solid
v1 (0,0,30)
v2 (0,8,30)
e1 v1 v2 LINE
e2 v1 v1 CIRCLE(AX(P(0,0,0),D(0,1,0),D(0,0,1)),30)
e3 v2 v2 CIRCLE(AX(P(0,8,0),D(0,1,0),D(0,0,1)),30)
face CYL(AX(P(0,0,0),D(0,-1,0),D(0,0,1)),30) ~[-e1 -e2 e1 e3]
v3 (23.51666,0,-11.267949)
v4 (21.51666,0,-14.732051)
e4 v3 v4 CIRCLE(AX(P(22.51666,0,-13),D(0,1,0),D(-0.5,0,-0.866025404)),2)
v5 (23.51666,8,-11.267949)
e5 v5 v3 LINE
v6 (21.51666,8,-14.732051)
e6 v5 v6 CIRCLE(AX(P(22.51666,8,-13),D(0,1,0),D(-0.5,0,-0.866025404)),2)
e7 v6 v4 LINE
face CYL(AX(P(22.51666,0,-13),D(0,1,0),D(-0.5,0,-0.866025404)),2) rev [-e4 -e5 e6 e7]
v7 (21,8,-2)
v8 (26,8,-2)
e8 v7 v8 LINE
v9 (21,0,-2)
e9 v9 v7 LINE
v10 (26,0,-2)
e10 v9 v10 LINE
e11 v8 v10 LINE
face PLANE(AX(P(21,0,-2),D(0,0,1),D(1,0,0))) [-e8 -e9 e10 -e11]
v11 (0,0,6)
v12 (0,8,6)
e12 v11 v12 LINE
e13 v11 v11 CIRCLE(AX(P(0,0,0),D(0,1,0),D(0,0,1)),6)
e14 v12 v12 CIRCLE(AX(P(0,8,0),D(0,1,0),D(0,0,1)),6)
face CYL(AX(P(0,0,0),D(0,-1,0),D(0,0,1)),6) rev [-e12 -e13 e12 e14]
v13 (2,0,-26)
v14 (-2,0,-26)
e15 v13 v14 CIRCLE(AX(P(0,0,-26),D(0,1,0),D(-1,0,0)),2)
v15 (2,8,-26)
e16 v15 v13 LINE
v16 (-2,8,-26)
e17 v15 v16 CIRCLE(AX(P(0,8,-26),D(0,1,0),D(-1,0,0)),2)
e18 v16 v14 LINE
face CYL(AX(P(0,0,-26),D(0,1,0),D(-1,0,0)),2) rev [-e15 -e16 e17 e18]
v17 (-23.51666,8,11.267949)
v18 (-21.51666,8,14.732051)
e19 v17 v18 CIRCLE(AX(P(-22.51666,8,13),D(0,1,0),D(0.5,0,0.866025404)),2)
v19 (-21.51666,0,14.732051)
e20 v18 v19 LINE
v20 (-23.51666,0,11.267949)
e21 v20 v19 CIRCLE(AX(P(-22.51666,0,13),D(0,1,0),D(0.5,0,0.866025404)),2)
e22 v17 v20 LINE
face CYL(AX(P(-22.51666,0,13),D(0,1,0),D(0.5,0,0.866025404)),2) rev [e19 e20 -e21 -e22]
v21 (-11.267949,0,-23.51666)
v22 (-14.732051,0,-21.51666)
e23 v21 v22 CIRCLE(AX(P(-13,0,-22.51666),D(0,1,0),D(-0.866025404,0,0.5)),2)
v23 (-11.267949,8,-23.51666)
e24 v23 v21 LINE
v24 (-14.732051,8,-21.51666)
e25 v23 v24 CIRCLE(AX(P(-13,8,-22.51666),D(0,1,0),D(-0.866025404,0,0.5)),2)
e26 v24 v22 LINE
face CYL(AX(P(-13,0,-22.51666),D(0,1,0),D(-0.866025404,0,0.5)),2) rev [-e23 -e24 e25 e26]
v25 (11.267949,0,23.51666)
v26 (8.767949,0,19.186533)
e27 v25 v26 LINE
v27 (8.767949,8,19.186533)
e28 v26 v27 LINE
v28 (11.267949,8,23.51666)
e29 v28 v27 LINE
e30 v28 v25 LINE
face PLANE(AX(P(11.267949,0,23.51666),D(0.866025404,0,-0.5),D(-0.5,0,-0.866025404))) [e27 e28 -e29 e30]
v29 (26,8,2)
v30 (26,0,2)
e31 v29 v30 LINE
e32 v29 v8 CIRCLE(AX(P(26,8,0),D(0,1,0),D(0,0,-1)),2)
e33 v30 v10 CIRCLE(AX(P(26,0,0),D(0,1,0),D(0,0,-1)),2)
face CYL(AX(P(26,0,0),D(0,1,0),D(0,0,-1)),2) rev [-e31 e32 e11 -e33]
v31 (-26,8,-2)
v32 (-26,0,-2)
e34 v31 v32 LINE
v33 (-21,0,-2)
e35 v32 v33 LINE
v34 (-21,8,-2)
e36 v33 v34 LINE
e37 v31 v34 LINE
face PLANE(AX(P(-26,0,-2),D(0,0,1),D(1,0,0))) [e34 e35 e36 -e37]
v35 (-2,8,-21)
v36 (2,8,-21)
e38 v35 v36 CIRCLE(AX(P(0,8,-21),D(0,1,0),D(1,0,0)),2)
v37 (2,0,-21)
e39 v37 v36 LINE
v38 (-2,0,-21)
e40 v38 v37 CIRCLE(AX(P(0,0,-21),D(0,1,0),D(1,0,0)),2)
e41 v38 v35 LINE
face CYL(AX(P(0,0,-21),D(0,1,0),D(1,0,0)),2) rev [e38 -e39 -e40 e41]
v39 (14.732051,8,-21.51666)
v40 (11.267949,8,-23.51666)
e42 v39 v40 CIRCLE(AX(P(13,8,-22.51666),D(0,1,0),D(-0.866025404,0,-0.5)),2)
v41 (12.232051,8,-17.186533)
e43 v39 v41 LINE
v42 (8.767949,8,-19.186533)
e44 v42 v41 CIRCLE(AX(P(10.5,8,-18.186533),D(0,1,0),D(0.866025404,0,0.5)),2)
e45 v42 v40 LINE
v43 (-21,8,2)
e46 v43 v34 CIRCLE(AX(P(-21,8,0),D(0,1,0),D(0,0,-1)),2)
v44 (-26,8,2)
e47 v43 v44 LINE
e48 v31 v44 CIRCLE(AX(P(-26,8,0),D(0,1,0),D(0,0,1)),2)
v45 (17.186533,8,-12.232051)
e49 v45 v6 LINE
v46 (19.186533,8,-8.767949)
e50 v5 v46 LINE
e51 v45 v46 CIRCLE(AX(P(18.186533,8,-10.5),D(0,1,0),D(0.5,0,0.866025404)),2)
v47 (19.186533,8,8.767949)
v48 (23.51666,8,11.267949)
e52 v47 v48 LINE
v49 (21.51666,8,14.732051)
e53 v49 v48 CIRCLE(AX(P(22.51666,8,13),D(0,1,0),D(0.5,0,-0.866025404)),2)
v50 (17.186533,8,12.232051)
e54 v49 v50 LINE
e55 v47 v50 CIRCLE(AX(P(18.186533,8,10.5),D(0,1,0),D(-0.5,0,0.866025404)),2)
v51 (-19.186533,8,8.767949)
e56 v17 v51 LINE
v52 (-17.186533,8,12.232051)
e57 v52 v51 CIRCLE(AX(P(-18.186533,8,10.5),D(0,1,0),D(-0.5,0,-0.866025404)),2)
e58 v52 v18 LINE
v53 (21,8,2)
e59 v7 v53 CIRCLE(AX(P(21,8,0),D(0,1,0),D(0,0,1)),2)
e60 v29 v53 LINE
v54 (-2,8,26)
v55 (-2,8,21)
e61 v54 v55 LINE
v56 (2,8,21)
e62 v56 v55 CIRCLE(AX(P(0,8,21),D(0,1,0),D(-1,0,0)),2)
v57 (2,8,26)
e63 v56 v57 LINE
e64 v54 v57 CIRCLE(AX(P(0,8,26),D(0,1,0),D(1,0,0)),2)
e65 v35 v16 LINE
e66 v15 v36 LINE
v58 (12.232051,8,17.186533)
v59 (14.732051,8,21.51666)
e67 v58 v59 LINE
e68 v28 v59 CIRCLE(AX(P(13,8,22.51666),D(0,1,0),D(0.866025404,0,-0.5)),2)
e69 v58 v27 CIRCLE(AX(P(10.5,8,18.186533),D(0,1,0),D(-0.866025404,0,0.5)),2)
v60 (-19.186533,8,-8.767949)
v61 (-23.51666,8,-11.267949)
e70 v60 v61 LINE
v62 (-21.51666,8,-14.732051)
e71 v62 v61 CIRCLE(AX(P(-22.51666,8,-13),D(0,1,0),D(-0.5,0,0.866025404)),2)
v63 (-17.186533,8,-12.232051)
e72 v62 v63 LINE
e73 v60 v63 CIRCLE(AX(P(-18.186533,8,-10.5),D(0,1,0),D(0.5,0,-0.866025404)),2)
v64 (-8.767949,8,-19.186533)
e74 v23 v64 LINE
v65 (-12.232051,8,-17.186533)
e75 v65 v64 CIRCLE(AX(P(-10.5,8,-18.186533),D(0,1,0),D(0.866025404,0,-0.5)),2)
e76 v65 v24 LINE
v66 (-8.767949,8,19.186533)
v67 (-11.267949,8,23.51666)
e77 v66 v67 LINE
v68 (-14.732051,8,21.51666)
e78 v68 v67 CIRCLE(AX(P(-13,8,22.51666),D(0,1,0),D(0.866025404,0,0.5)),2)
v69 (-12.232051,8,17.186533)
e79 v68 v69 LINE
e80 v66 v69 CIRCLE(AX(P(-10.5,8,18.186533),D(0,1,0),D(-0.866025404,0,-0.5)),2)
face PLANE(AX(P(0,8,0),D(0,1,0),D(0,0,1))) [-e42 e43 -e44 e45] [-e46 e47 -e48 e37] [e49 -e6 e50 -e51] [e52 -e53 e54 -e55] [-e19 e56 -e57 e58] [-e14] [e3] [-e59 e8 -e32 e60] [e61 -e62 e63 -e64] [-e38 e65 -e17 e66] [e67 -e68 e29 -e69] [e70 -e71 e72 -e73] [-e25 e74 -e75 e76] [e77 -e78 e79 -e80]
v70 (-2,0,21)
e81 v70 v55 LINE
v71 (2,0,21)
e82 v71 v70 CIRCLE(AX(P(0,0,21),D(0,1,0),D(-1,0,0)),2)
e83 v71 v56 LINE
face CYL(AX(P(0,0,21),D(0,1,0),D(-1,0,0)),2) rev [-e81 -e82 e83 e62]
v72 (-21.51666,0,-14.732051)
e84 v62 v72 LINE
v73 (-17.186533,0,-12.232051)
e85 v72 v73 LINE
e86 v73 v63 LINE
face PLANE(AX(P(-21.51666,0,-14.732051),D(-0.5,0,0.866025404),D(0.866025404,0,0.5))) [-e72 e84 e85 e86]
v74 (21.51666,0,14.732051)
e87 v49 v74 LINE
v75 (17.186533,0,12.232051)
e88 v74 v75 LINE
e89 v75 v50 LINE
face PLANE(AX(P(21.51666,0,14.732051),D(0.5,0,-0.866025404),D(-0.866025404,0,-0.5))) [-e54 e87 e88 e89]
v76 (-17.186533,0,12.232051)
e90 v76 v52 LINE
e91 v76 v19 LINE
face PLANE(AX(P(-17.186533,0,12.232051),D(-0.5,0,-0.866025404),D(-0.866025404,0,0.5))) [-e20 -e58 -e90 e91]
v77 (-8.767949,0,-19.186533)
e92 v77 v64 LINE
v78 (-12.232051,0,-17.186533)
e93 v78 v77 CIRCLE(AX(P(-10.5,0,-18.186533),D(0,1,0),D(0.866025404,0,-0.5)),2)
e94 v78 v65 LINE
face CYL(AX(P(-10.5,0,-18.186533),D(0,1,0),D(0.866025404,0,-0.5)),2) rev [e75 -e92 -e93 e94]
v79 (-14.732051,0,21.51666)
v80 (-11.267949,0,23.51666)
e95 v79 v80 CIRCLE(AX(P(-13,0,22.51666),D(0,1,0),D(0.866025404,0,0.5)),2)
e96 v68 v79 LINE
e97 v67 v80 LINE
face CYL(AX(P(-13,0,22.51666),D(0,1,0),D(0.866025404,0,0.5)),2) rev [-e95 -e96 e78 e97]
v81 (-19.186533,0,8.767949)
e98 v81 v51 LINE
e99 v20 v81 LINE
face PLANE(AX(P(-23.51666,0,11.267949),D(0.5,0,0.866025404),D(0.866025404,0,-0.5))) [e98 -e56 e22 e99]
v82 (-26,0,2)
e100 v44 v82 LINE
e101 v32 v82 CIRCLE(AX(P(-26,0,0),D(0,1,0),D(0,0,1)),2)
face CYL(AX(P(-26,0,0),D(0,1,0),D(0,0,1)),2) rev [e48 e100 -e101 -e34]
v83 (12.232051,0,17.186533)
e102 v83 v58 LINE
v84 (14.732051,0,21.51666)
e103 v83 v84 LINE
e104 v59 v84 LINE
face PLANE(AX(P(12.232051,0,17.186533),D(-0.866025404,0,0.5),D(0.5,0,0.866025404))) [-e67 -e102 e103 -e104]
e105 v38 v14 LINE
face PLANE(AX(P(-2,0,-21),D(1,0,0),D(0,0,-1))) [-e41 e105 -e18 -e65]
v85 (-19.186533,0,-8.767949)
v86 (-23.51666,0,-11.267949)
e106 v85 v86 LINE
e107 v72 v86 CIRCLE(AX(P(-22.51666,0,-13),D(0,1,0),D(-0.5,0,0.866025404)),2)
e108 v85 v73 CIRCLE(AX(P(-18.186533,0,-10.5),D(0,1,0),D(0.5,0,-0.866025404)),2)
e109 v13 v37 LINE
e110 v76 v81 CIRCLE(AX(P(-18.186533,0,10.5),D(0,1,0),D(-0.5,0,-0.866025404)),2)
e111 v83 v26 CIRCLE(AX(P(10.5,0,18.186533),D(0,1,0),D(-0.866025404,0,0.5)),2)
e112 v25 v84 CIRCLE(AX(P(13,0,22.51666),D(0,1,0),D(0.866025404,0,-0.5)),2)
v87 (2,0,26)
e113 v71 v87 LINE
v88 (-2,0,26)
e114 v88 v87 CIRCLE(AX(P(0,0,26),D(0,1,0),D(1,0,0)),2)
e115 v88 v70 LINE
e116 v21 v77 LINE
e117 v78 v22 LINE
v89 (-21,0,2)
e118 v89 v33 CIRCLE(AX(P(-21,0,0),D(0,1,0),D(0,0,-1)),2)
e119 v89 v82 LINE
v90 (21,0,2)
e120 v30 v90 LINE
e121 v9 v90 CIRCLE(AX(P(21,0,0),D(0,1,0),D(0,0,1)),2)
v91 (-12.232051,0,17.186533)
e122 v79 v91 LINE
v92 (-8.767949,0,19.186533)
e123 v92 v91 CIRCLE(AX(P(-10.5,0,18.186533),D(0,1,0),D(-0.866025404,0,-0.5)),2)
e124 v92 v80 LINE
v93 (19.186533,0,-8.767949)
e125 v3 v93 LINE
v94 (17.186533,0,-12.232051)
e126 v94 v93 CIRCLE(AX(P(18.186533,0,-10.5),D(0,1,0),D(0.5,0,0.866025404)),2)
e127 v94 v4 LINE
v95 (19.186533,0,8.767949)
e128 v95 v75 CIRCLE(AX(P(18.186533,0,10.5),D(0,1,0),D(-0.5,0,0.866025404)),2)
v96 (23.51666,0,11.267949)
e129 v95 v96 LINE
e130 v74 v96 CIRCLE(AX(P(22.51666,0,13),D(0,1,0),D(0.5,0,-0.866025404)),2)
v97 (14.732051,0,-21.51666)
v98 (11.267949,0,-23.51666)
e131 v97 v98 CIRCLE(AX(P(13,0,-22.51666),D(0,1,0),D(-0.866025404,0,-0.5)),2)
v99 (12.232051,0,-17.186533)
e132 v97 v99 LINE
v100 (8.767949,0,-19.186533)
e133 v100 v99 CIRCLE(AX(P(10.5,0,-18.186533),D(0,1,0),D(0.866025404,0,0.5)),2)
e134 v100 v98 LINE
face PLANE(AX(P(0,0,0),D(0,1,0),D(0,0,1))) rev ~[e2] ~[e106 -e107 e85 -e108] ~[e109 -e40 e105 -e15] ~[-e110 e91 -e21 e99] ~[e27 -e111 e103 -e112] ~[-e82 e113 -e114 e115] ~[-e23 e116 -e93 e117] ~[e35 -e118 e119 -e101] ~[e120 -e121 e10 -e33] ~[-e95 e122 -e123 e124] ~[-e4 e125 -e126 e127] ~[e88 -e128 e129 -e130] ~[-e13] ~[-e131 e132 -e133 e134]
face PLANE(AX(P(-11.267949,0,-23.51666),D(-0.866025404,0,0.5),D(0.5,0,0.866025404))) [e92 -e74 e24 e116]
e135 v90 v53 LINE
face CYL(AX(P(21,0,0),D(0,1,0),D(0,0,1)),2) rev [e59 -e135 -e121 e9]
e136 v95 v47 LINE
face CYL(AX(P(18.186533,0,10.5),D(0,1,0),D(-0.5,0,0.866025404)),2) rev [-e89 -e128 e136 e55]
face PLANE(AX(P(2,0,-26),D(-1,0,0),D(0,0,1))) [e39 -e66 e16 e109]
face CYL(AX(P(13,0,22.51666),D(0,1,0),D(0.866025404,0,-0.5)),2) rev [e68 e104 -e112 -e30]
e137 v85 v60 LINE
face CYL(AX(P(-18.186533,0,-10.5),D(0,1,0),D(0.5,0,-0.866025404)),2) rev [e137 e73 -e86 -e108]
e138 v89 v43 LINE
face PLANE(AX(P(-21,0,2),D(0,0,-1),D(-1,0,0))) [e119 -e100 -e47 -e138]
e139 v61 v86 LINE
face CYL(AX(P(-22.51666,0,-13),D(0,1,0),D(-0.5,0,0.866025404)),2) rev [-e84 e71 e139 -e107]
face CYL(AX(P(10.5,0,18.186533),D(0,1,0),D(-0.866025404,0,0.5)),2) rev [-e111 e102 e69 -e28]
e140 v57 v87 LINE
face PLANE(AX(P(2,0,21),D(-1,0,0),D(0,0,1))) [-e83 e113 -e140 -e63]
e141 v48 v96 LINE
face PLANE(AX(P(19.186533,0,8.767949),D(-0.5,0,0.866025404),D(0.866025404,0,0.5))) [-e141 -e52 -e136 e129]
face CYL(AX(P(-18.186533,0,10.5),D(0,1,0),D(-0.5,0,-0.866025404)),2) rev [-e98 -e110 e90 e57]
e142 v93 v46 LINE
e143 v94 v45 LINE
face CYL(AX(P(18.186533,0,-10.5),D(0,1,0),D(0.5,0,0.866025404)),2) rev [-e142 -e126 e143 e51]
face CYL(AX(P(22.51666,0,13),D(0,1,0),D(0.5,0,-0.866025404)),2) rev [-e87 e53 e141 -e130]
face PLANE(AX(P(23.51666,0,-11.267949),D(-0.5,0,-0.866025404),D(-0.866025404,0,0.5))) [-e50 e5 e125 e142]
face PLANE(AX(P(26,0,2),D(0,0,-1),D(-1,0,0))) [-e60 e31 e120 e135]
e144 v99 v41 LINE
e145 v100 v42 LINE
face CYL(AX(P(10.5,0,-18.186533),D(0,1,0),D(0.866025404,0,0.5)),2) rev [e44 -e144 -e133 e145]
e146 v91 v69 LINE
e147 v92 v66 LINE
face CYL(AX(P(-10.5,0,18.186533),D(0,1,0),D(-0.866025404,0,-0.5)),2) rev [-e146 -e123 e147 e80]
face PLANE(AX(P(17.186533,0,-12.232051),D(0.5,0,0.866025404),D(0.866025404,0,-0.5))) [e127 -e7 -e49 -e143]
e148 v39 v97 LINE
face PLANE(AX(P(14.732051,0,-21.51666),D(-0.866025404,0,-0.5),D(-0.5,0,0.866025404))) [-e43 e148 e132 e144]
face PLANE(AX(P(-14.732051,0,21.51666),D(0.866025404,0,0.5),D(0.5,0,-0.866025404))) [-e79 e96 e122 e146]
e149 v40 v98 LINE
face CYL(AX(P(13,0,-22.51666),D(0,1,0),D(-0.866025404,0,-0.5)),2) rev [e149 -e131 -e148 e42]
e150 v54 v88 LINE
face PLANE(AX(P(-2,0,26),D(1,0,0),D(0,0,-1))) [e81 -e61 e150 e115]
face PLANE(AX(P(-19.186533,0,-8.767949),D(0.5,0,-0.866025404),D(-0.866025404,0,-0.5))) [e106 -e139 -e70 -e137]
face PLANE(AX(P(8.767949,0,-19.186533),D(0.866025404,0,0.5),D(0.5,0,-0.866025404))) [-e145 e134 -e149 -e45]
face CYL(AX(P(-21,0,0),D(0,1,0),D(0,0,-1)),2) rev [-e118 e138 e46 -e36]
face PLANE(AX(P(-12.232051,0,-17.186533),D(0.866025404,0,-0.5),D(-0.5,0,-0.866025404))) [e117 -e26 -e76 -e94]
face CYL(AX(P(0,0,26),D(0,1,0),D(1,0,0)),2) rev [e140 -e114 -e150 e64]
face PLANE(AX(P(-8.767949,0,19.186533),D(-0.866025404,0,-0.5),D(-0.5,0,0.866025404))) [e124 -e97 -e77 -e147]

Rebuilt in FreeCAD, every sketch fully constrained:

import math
import FreeCAD as App
import Part
import Sketcher
Q = App.Units.Quantity

doc = App.newDocument("Part")
body = doc.addObject("PartDesign::Body", "Body")

sketch1 = doc.addObject("Sketcher::SketchObject", "Sketch")
body.addObject(sketch1)
sketch1.AttachmentSupport = (doc.XZ_Plane, [""])
sketch1.MapMode = "FlatFace"
sketch1.addGeometry(Part.Circle(App.Vector(0, 0, 0), App.Vector(0, 0, 1), 30), False)
sketch1.addGeometry(Part.Circle(App.Vector(0, 0, 0), App.Vector(0, 0, 1), 6), False)
sketch1.addConstraint(Sketcher.Constraint("Coincident", 0, 3, -1, 1))
sketch1.addConstraint(Sketcher.Constraint("Coincident", 1, 3, -1, 1))
sketch1.addConstraint(Sketcher.Constraint("Diameter", 0, Q("60 mm")))
sketch1.addConstraint(Sketcher.Constraint("Diameter", 1, Q("12 mm")))
pad1 = doc.addObject("PartDesign::Pad", "Pad")
body.addObject(pad1)
pad1.Profile = sketch1
pad1.Length = 8
pad1.Reversed = True

sketch2 = doc.addObject("Sketcher::SketchObject", "Sketch001")
body.addObject(sketch2)
sketch2.AttachmentSupport = (doc.XZ_Plane, [""])
sketch2.MapMode = "FlatFace"
sketch2.addGeometry(Part.LineSegment(App.Vector(26, -2, 0), App.Vector(21, -2, 0)), False)
sketch2.addGeometry(Part.ArcOfCircle(Part.Circle(App.Vector(21, 0, 0), App.Vector(0, 0, 1), 2), math.radians(90), math.radians(270)), False)
sketch2.addGeometry(Part.LineSegment(App.Vector(21, 2, 0), App.Vector(26, 2, 0)), False)
sketch2.addGeometry(Part.ArcOfCircle(Part.Circle(App.Vector(26, 0, 0), App.Vector(0, 0, 1), 2), math.radians(-90), math.radians(90)), False)
sketch2.addConstraint(Sketcher.Constraint("Tangent", 0, 2, 1, 2))
sketch2.addConstraint(Sketcher.Constraint("Tangent", 1, 1, 2, 1))
sketch2.addConstraint(Sketcher.Constraint("Tangent", 2, 2, 3, 2))
sketch2.addConstraint(Sketcher.Constraint("Tangent", 3, 1, 0, 1))
sketch2.addConstraint(Sketcher.Constraint("Horizontal", 0))
sketch2.addConstraint(Sketcher.Constraint("Horizontal", 2))
sketch2.addConstraint(Sketcher.Constraint("PointOnObject", 1, 3, -1))
sketch2.addConstraint(Sketcher.Constraint("Radius", 1, Q("2 mm")))
sketch2.addConstraint(Sketcher.Constraint("DistanceX", 0, 2, 0, 1, Q("5 mm")))
sketch2.addConstraint(Sketcher.Constraint("DistanceX", -1, 1, 1, 3, Q("21 mm")))
pocket1 = doc.addObject("PartDesign::Pocket", "Pocket")
body.addObject(pocket1)
pocket1.Profile = sketch2
pocket1.Length = 122
pocket1.Midplane = True
doc.recompute()

polarpattern = doc.addObject("PartDesign::PolarPattern", "PolarPattern")
body.addObject(polarpattern)
polarpattern.Originals = [pocket1]
polarpattern.Axis = (doc.Y_Axis, [""])
polarpattern.Angle = 360
polarpattern.Occurrences = 12
body.Tip = polarpattern

doc.recompute()
